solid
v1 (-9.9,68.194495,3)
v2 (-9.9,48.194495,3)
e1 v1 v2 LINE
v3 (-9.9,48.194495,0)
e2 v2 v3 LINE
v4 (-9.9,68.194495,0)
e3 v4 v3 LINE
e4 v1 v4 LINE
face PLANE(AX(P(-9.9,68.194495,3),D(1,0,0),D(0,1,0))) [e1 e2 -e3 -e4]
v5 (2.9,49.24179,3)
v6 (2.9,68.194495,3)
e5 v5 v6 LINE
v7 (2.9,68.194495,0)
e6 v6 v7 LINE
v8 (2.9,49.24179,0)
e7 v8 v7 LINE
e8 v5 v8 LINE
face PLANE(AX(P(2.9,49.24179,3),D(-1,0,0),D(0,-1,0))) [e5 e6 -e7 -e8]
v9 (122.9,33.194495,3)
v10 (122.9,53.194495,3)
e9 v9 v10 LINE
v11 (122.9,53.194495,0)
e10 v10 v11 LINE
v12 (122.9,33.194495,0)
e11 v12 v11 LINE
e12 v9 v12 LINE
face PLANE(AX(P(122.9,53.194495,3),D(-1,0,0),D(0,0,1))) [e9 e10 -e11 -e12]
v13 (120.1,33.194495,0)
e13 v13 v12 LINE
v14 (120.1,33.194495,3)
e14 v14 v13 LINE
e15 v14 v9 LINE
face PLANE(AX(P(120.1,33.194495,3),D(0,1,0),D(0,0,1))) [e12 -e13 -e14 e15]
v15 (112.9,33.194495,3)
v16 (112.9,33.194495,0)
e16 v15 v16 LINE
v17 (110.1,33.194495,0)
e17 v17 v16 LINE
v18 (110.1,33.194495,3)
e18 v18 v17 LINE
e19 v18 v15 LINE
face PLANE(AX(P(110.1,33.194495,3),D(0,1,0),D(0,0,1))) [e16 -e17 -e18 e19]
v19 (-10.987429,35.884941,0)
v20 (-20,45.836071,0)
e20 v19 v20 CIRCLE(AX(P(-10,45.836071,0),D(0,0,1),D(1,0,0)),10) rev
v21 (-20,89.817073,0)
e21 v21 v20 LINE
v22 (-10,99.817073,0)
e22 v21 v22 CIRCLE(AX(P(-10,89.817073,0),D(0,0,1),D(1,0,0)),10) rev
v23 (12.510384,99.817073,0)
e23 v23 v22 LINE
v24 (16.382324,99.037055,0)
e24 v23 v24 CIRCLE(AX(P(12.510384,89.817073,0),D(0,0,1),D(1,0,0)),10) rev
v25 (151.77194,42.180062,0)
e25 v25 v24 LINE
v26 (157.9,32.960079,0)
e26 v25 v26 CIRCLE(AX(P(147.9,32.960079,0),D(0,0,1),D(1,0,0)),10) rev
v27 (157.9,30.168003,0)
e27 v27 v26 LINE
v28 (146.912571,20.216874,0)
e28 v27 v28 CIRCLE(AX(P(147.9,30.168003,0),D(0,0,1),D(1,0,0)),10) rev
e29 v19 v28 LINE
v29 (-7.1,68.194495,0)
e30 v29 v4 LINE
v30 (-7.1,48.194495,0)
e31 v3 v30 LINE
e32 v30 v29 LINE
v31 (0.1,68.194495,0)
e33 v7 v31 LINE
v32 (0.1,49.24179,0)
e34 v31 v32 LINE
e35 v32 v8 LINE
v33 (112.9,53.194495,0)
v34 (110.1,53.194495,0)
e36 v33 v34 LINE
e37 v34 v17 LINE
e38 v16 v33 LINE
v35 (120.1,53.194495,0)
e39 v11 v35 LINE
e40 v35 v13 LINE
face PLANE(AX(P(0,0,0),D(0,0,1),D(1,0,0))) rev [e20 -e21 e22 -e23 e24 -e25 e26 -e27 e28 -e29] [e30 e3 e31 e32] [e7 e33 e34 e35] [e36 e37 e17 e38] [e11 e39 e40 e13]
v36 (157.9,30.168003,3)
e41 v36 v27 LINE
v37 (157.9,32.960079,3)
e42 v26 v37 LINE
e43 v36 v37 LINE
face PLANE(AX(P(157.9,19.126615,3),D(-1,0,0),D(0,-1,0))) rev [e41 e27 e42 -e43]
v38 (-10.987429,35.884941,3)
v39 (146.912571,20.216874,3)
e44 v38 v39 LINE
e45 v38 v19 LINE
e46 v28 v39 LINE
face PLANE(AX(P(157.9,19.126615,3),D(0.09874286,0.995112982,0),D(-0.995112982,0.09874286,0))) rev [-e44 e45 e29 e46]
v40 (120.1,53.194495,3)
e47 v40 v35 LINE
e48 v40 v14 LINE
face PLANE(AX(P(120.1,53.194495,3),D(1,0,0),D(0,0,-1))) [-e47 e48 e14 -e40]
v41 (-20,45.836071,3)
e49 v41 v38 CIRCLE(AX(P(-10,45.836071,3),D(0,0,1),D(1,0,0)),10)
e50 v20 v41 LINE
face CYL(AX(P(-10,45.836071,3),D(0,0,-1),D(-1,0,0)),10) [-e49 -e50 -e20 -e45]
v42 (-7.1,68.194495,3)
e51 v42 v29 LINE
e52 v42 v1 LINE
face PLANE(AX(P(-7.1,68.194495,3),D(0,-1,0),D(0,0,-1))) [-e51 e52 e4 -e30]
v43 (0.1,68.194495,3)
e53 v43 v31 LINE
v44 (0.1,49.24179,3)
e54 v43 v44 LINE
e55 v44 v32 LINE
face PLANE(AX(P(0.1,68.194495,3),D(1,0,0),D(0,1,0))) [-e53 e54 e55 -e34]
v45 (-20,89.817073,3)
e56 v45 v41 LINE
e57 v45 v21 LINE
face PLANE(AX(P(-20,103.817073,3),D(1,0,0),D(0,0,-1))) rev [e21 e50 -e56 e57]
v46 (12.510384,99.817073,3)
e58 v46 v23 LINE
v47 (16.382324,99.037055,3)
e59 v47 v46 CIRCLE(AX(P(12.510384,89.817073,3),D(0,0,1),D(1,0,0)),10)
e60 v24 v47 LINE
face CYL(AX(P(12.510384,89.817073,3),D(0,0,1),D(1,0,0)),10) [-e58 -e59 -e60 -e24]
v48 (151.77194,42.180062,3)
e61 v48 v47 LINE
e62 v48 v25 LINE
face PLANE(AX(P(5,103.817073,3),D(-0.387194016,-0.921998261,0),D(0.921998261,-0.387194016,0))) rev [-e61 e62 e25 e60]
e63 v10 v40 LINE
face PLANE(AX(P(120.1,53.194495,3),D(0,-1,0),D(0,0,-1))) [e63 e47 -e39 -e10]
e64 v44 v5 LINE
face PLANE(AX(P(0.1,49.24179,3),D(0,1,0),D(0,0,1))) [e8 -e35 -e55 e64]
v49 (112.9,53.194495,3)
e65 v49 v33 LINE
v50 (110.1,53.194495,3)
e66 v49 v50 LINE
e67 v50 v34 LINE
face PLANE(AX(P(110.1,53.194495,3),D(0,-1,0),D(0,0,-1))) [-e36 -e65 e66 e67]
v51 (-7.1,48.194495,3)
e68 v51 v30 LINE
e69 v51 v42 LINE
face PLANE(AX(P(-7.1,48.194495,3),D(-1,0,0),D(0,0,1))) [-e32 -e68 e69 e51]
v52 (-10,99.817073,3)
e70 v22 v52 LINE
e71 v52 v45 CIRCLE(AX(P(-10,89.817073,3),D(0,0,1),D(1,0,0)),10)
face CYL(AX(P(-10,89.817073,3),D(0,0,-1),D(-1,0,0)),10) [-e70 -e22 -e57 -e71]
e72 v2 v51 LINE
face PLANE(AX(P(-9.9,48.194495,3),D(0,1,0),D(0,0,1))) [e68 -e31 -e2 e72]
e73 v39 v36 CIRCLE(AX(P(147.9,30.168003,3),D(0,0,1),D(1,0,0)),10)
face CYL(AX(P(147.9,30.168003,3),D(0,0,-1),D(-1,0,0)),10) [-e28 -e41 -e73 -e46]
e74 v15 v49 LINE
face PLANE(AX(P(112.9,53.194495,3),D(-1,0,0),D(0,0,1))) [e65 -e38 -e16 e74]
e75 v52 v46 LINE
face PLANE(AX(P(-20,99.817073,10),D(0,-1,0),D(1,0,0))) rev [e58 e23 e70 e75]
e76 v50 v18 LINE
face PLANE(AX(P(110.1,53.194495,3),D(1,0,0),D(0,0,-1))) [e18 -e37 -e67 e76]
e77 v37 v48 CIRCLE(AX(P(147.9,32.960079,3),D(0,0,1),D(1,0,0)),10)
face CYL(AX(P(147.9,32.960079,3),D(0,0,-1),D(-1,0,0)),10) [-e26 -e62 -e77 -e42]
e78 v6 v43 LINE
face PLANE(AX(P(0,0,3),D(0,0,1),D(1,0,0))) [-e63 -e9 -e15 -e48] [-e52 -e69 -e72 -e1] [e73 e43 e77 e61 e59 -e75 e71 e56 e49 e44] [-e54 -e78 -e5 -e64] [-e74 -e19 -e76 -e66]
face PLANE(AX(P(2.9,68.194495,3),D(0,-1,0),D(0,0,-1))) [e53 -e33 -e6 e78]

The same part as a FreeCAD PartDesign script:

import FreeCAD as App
import Part
import Sketcher

V = App.Vector
Q = App.Units.Quantity


def edges_at(feature, points):
    """Names of the edges that pass closest to the given points."""
    edges = feature.Shape.Edges
    near = lambda p: min(range(len(edges)), key=lambda i: edges[i].distToShape(Part.Vertex(*p))[0])
    return sorted({f"Edge{near(p) + 1}" for p in points})


def add_polygon(sketch, points):
    """Adds a closed chain of lines whose ends are joined by coincident constraints."""
    first, n = sketch.GeometryCount, len(points)
    for a, b in zip(points, points[1:] + points[:1]):
        sketch.addGeometry(Part.LineSegment(App.Vector(*a, 0), App.Vector(*b, 0)), False)
    for i in range(n):
        sketch.addConstraint(Sketcher.Constraint("Coincident", first + i, 2, first + (i + 1) % n, 1))

doc = App.newDocument("Part")
body = doc.addObject("PartDesign::Body", "Body")

# Sketch on XY plane
sketch1 = doc.addObject("Sketcher::SketchObject", "Sketch")
body.addObject(sketch1)
sketch1.AttachmentSupport = (doc.XY_Plane, [""])
sketch1.MapMode = "FlatFace"
add_polygon(sketch1, [(5, 103.817073), (-20, 103.817073), (-20, 36.779239), (157.9, 19.126615), (157.9, 39.606577)])  # lines 0-4
add_polygon(sketch1, [(120.1, 33.194495), (120.1, 53.194495), (122.9, 53.194495), (122.9, 33.194495)])  # lines 5-8
add_polygon(sketch1, [(110.1, 33.194495), (110.1, 53.194495), (112.9, 53.194495), (112.9, 33.194495)])  # lines 9-12
add_polygon(sketch1, [(0.1, 49.24179), (0.1, 68.194495), (2.9, 68.194495), (2.9, 49.24179)])  # lines 13-16
add_polygon(sketch1, [(-9.9, 48.194495), (-9.9, 68.194495), (-7.1, 68.194495), (-7.1, 48.194495)])  # lines 17-20
sketch1.addConstraint(Sketcher.Constraint("Horizontal", 0))
sketch1.addConstraint(Sketcher.Constraint("Vertical", 1))
sketch1.addConstraint(Sketcher.Constraint("Vertical", 3))
sketch1.addConstraint(Sketcher.Constraint("Vertical", 5))
sketch1.addConstraint(Sketcher.Constraint("Horizontal", 6))
sketch1.addConstraint(Sketcher.Constraint("Vertical", 7))
sketch1.addConstraint(Sketcher.Constraint("Horizontal", 8))
sketch1.addConstraint(Sketcher.Constraint("Vertical", 9))
sketch1.addConstraint(Sketcher.Constraint("Horizontal", 10))
sketch1.addConstraint(Sketcher.Constraint("Vertical", 11))
sketch1.addConstraint(Sketcher.Constraint("Horizontal", 12))
sketch1.addConstraint(Sketcher.Constraint("Vertical", 13))
sketch1.addConstraint(Sketcher.Constraint("Horizontal", 14))
sketch1.addConstraint(Sketcher.Constraint("Vertical", 15))
sketch1.addConstraint(Sketcher.Constraint("Horizontal", 16))
sketch1.addConstraint(Sketcher.Constraint("Vertical", 17))
sketch1.addConstraint(Sketcher.Constraint("Horizontal", 18))
sketch1.addConstraint(Sketcher.Constraint("Vertical", 19))
sketch1.addConstraint(Sketcher.Constraint("Horizontal", 20))
sketch1.addConstraint(Sketcher.Constraint("Horizontal", 6, 2, 9, 2))
sketch1.addConstraint(Sketcher.Constraint("Horizontal", 8, 2, 11, 2))
sketch1.addConstraint(Sketcher.Constraint("Horizontal", 14, 2, 17, 2))
sketch1.addConstraint(Sketcher.Constraint("Equal", 8, 10))
sketch1.addConstraint(Sketcher.Constraint("Equal", 12, 14))
sketch1.addConstraint(Sketcher.Constraint("Equal", 16, 18))
sketch1.addConstraint(Sketcher.Constraint("Equal", 11, 17))
sketch1.addConstraint(Sketcher.Constraint("DistanceX", 0, 2, 0, 1, Q("25 mm")))
sketch1.addConstraint(Sketcher.Constraint("DistanceY", 5, 1, 5, 2, Q("20 mm")))
sketch1.addConstraint(Sketcher.Constraint("DistanceX", 6, 1, 6, 2, Q("2.8 mm")))
sketch1.addConstraint(Sketcher.Constraint("DistanceX", 0, 2, -1, 1, Q("20 mm")))
sketch1.addConstraint(Sketcher.Constraint("DistanceX", 6, 2, 3, 2, Q("35 mm")))
sketch1.addConstraint(Sketcher.Constraint("DistanceX", 9, 2, 5, 2, Q("10 mm")))
sketch1.addConstraint(Sketcher.Constraint("DistanceX", 13, 2, 9, 2, Q("110 mm")))
sketch1.addConstraint(Sketcher.Constraint("DistanceY", 9, 2, 13, 2, Q("15 mm")))
sketch1.addConstraint(Sketcher.Constraint("DistanceX", 17, 2, 13, 2, Q("10 mm")))
sketch1.addConstraint(Sketcher.Constraint("DistanceX", -1, 1, 2, 2, Q("157.9 mm")))
sketch1.addConstraint(Sketcher.Constraint("Angle", 4, Q("157.219985 deg")))
sketch1.addConstraint(Sketcher.Constraint("Distance", 2, Q("178.77367 mm")))
sketch1.addConstraint(Sketcher.Constraint("DistanceY", 1, 2, 1, 1, Q("67.037834 mm")))
sketch1.addConstraint(Sketcher.Constraint("DistanceY", 13, 1, 13, 2, Q("18.952706 mm")))
sketch1.addConstraint(Sketcher.Constraint("DistanceY", -1, 1, 1, 2, Q("36.779239 mm")))
sketch1.addConstraint(Sketcher.Constraint("DistanceY", -1, 1, 15, 2, Q("49.24179 mm")))
pad1 = doc.addObject("PartDesign::Pad", "Pad")
body.addObject(pad1)
pad1.Profile = sketch1
pad1.Length = 3
doc.recompute()

fillet = doc.addObject("PartDesign::Fillet", "Fillet")
body.addObject(fillet)
fillet.Base = (pad1, edges_at(pad1, [(157.9, 39.607, 1.5), (157.9, 19.127, 1.5), (-20, 36.779, 1.5)]))
fillet.Radius = 10

# Sketch on XY plane
sketch2 = doc.addObject("Sketcher::SketchObject", "Sketch001")
body.addObject(sketch2)
sketch2.AttachmentSupport = (doc.XY_Plane, [""])
sketch2.MapMode = "FlatFace"
add_polygon(sketch2, [(14.524923, 103.817073), (14.524923, 99.817073), (-20, 99.817073), (-20, 103.817073)])  # lines 0-3
sketch2.addConstraint(Sketcher.Constraint("Vertical", 0))
sketch2.addConstraint(Sketcher.Constraint("Horizontal", 1))
sketch2.addConstraint(Sketcher.Constraint("Vertical", 2))
sketch2.addConstraint(Sketcher.Constraint("Horizontal", 3))
sketch2.addConstraint(Sketcher.Constraint("DistanceY", 0, 2, 0, 1, Q("4 mm")))
sketch2.addConstraint(Sketcher.Constraint("DistanceX", 1, 2, -1, 1, Q("20 mm")))
sketch2.addConstraint(Sketcher.Constraint("DistanceX", 1, 2, 1, 1, Q("34.524923 mm")))
sketch2.addConstraint(Sketcher.Constraint("DistanceY", -1, 1, 0, 2, Q("99.817073 mm")))
pocket1 = doc.addObject("PartDesign::Pocket", "Pocket")
body.addObject(pocket1)
pocket1.Profile = sketch2
pocket1.Length = 10
pocket1.Reversed = True
doc.recompute()

fillet2 = doc.addObject("PartDesign::Fillet", "Fillet001")
body.addObject(fillet2)
fillet2.Base = (pocket1, edges_at(pocket1, [(14.525, 99.817, 1.5), (-20, 99.817, 1.5)]))
fillet2.Radius = 10

doc.recompute()
